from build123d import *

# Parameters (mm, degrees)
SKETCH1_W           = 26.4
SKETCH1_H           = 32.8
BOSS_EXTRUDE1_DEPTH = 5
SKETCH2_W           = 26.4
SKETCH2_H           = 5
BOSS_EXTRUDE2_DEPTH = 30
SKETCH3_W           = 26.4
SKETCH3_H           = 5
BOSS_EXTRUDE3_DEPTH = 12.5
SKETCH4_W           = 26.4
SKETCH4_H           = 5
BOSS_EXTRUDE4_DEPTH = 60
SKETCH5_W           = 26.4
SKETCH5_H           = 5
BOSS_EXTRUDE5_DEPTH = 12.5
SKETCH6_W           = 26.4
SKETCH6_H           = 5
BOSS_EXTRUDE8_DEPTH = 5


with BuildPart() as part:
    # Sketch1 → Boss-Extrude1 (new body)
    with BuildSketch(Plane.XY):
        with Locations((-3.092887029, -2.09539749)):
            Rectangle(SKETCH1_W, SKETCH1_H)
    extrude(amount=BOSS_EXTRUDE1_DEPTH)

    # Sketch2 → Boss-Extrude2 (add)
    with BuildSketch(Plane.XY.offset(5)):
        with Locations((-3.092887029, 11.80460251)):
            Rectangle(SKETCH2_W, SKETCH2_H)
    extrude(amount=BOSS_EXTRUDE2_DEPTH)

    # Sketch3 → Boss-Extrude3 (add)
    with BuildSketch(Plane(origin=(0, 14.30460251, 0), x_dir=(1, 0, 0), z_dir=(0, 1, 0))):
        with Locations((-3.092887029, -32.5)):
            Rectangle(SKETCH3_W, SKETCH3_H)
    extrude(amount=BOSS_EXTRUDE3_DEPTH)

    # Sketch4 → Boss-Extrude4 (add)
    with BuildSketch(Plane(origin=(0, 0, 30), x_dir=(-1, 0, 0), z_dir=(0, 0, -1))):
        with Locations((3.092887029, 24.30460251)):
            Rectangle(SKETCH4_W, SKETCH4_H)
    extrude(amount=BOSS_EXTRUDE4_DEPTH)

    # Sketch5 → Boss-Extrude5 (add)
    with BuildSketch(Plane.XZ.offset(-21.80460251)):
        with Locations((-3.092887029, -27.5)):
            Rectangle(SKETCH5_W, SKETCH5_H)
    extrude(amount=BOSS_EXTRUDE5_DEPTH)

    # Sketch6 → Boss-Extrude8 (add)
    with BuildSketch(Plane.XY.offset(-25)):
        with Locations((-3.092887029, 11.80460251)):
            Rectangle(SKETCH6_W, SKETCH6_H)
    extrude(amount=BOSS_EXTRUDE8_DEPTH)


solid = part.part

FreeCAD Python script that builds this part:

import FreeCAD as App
import Part
import Sketcher

doc = App.newDocument("Part")
body = doc.addObject("PartDesign::Body", "Body")

sketch1 = body.newObject("Sketcher::SketchObject", "Sketch")
sketch1.AttachmentSupport = (doc.getObject("XY_Plane"), [""])
sketch1.MapMode = "FlatFace"
sketch1.addGeometry(Part.LineSegment(App.Vector(-16.292887, 14.304603, 0), App.Vector(-16.292887, -18.495397, 0)), False)
sketch1.addGeometry(Part.LineSegment(App.Vector(-16.292887, -18.495397, 0), App.Vector(10.107113, -18.495397, 0)), False)
sketch1.addGeometry(Part.LineSegment(App.Vector(10.107113, -18.495397, 0), App.Vector(10.107113, 14.304603, 0)), False)
sketch1.addGeometry(Part.LineSegment(App.Vector(10.107113, 14.304603, 0), App.Vector(-16.292887, 14.304603, 0)), False)
sketch1.addConstraint(Sketcher.Constraint("Coincident", 0, 2, 1, 1))
sketch1.addConstraint(Sketcher.Constraint("Coincident", 1, 2, 2, 1))
sketch1.addConstraint(Sketcher.Constraint("Coincident", 2, 2, 3, 1))
sketch1.addConstraint(Sketcher.Constraint("Coincident", 3, 2, 0, 1))
sketch1.addConstraint(Sketcher.Constraint("Vertical", 0))
sketch1.addConstraint(Sketcher.Constraint("Horizontal", 1))
sketch1.addConstraint(Sketcher.Constraint("Vertical", 2))
sketch1.addConstraint(Sketcher.Constraint("Horizontal", 3))
sketch1.addConstraint(Sketcher.Constraint("DistanceX", 1, 1, 1, 2, 26.4))
sketch1.addConstraint(Sketcher.Constraint("DistanceY", 0, 2, 0, 1, 32.8))
sketch1.addConstraint(Sketcher.Constraint("DistanceX", 0, 2, -1, 1, 16.292887))
sketch1.addConstraint(Sketcher.Constraint("DistanceY", 0, 2, -1, 1, 18.495397))
pad1 = body.newObject("PartDesign::Pad", "Pad")
pad1.Profile = sketch1
pad1.Length = 5

sketch2 = body.newObject("Sketcher::SketchObject", "Sketch001")
sketch2.AttachmentSupport = (doc.getObject("XY_Plane"), [""])
sketch2.MapMode = "FlatFace"
sketch2.AttachmentOffset = App.Placement(App.Vector(0, 0, 5), App.Rotation())
sketch2.addGeometry(Part.LineSegment(App.Vector(-16.292887, 14.304603, 0), App.Vector(-16.292887, 9.304603, 0)), False)
sketch2.addGeometry(Part.LineSegment(App.Vector(-16.292887, 9.304603, 0), App.Vector(10.107113, 9.304603, 0)), False)
sketch2.addGeometry(Part.LineSegment(App.Vector(10.107113, 9.304603, 0), App.Vector(10.107113, 14.304603, 0)), False)
sketch2.addGeometry(Part.LineSegment(App.Vector(10.107113, 14.304603, 0), App.Vector(-16.292887, 14.304603, 0)), False)
sketch2.addConstraint(Sketcher.Constraint("Coincident", 0, 2, 1, 1))
sketch2.addConstraint(Sketcher.Constraint("Coincident", 1, 2, 2, 1))
sketch2.addConstraint(Sketcher.Constraint("Coincident", 2, 2, 3, 1))
sketch2.addConstraint(Sketcher.Constraint("Coincident", 3, 2, 0, 1))
sketch2.addConstraint(Sketcher.Constraint("Vertical", 0))
sketch2.addConstraint(Sketcher.Constraint("Horizontal", 1))
sketch2.addConstraint(Sketcher.Constraint("Vertical", 2))
sketch2.addConstraint(Sketcher.Constraint("Horizontal", 3))
sketch2.addConstraint(Sketcher.Constraint("DistanceY", 0, 2, 0, 1, 5.0))
sketch2.addConstraint(Sketcher.Constraint("DistanceX", 1, 1, 1, 2, 26.4))
sketch2.addConstraint(Sketcher.Constraint("DistanceX", 0, 2, -1, 1, 16.292887))
sketch2.addConstraint(Sketcher.Constraint("DistanceY", -1, 1, 0, 2, 9.304603))
pad2 = body.newObject("PartDesign::Pad", "Pad001")
pad2.Profile = sketch2
pad2.Length = 30

sketch3 = body.newObject("Sketcher::SketchObject", "Sketch002")
sketch3.AttachmentSupport = (doc.getObject("XZ_Plane"), [""])
sketch3.MapMode = "FlatFace"
sketch3.AttachmentOffset = App.Placement(App.Vector(0, 0, -14.304603), App.Rotation())
sketch3.addGeometry(Part.LineSegment(App.Vector(-16.292887, 30, 0), App.Vector(-16.292887, 35, 0)), False)
sketch3.addGeometry(Part.LineSegment(App.Vector(-16.292887, 35, 0), App.Vector(10.107113, 35, 0)), False)
sketch3.addGeometry(Part.LineSegment(App.Vector(10.107113, 35, 0), App.Vector(10.107113, 30, 0)), False)
sketch3.addGeometry(Part.LineSegment(App.Vector(10.107113, 30, 0), App.Vector(-16.292887, 30, 0)), False)
sketch3.addConstraint(Sketcher.Constraint("Coincident", 0, 2, 1, 1))
sketch3.addConstraint(Sketcher.Constraint("Coincident", 1, 2, 2, 1))
sketch3.addConstraint(Sketcher.Constraint("Coincident", 2, 2, 3, 1))
sketch3.addConstraint(Sketcher.Constraint("Coincident", 3, 2, 0, 1))
sketch3.addConstraint(Sketcher.Constraint("Vertical", 0))
sketch3.addConstraint(Sketcher.Constraint("Horizontal", 1))
sketch3.addConstraint(Sketcher.Constraint("Vertical", 2))
sketch3.addConstraint(Sketcher.Constraint("Horizontal", 3))
sketch3.addConstraint(Sketcher.Constraint("DistanceY", 0, 1, 0, 2, 5.0))
sketch3.addConstraint(Sketcher.Constraint("DistanceX", 1, 1, 1, 2, 26.4))
sketch3.addConstraint(Sketcher.Constraint("DistanceY", -1, 1, 0, 2, 35.0))
sketch3.addConstraint(Sketcher.Constraint("DistanceX", 0, 2, -1, 1, 16.292887))
pad3 = body.newObject("PartDesign::Pad", "Pad002")
pad3.Profile = sketch3
pad3.Length = 12.5
pad3.Reversed = True

sketch4 = body.newObject("Sketcher::SketchObject", "Sketch003")
sketch4.AttachmentSupport = (doc.getObject("XY_Plane"), [""])
sketch4.MapMode = "FlatFace"
sketch4.AttachmentOffset = App.Placement(App.Vector(0, 0, 30), App.Rotation())
sketch4.addGeometry(Part.LineSegment(App.Vector(10.107113, 26.804603, 0), App.Vector(10.107113, 21.804603, 0)), False)
sketch4.addGeometry(Part.LineSegment(App.Vector(10.107113, 21.804603, 0), App.Vector(-16.292887, 21.804603, 0)), False)
sketch4.addGeometry(Part.LineSegment(App.Vector(-16.292887, 21.804603, 0), App.Vector(-16.292887, 26.804603, 0)), False)
sketch4.addGeometry(Part.LineSegment(App.Vector(-16.292887, 26.804603, 0), App.Vector(10.107113, 26.804603, 0)), False)
sketch4.addConstraint(Sketcher.Constraint("Coincident", 0, 2, 1, 1))
sketch4.addConstraint(Sketcher.Constraint("Coincident", 1, 2, 2, 1))
sketch4.addConstraint(Sketcher.Constraint("Coincident", 2, 2, 3, 1))
sketch4.addConstraint(Sketcher.Constraint("Coincident", 3, 2, 0, 1))
sketch4.addConstraint(Sketcher.Constraint("Vertical", 0))
sketch4.addConstraint(Sketcher.Constraint("Horizontal", 1))
sketch4.addConstraint(Sketcher.Constraint("Vertical", 2))
sketch4.addConstraint(Sketcher.Constraint("Horizontal", 3))
sketch4.addConstraint(Sketcher.Constraint("DistanceY", 0, 2, 0, 1, 5.0))
sketch4.addConstraint(Sketcher.Constraint("DistanceX", 1, 2, 1, 1, 26.4))
sketch4.addConstraint(Sketcher.Constraint("DistanceX", -1, 1, 0, 2, 10.107113))
sketch4.addConstraint(Sketcher.Constraint("DistanceY", -1, 1, 0, 2, 21.804603))
pad4 = body.newObject("PartDesign::Pad", "Pad003")
pad4.Profile = sketch4
pad4.Length = 60
pad4.Reversed = True

sketch5 = body.newObject("Sketcher::SketchObject", "Sketch004")
sketch5.AttachmentSupport = (doc.getObject("XZ_Plane"), [""])
sketch5.MapMode = "FlatFace"
sketch5.AttachmentOffset = App.Placement(App.Vector(0, 0, -21.804603), App.Rotation())
sketch5.addGeometry(Part.LineSegment(App.Vector(-16.292887, -25, 0), App.Vector(-16.292887, -30, 0)), False)
sketch5.addGeometry(Part.LineSegment(App.Vector(-16.292887, -30, 0), App.Vector(10.107113, -30, 0)), False)
sketch5.addGeometry(Part.LineSegment(App.Vector(10.107113, -30, 0), App.Vector(10.107113, -25, 0)), False)
sketch5.addGeometry(Part.LineSegment(App.Vector(10.107113, -25, 0), App.Vector(-16.292887, -25, 0)), False)
sketch5.addConstraint(Sketcher.Constraint("Coincident", 0, 2, 1, 1))
sketch5.addConstraint(Sketcher.Constraint("Coincident", 1, 2, 2, 1))
sketch5.addConstraint(Sketcher.Constraint("Coincident", 2, 2, 3, 1))
sketch5.addConstraint(Sketcher.Constraint("Coincident", 3, 2, 0, 1))
sketch5.addConstraint(Sketcher.Constraint("Vertical", 0))
sketch5.addConstraint(Sketcher.Constraint("Horizontal", 1))
sketch5.addConstraint(Sketcher.Constraint("Vertical", 2))
sketch5.addConstraint(Sketcher.Constraint("Horizontal", 3))
sketch5.addConstraint(Sketcher.Constraint("DistanceY", 0, 2, 0, 1, 5.0))
sketch5.addConstraint(Sketcher.Constraint("DistanceX", 1, 1, 1, 2, 26.4))
sketch5.addConstraint(Sketcher.Constraint("DistanceY", 0, 2, -1, 1, 30.0))
sketch5.addConstraint(Sketcher.Constraint("DistanceX", 0, 2, -1, 1, 16.292887))
pad5 = body.newObject("PartDesign::Pad", "Pad004")
pad5.Profile = sketch5
pad5.Length = 12.5

sketch6 = body.newObject("Sketcher::SketchObject", "Sketch005")
sketch6.AttachmentSupport = (doc.getObject("XY_Plane"), [""])
sketch6.MapMode = "FlatFace"
sketch6.AttachmentOffset = App.Placement(App.Vector(0, 0, -25), App.Rotation())
sketch6.addGeometry(Part.LineSegment(App.Vector(-16.292887, 14.304603, 0), App.Vector(-16.292887, 9.304603, 0)), False)
sketch6.addGeometry(Part.LineSegment(App.Vector(-16.292887, 9.304603, 0), App.Vector(10.107113, 9.304603, 0)), False)
sketch6.addGeometry(Part.LineSegment(App.Vector(10.107113, 9.304603, 0), App.Vector(10.107113, 14.304603, 0)), False)
sketch6.addGeometry(Part.LineSegment(App.Vector(10.107113, 14.304603, 0), App.Vector(-16.292887, 14.304603, 0)), False)
sketch6.addConstraint(Sketcher.Constraint("Coincident", 0, 2, 1, 1))
sketch6.addConstraint(Sketcher.Constraint("Coincident", 1, 2, 2, 1))
sketch6.addConstraint(Sketcher.Constraint("Coincident", 2, 2, 3, 1))
sketch6.addConstraint(Sketcher.Constraint("Coincident", 3, 2, 0, 1))
sketch6.addConstraint(Sketcher.Constraint("Vertical", 0))
sketch6.addConstraint(Sketcher.Constraint("Horizontal", 1))
sketch6.addConstraint(Sketcher.Constraint("Vertical", 2))
sketch6.addConstraint(Sketcher.Constraint("Horizontal", 3))
sketch6.addConstraint(Sketcher.Constraint("DistanceY", 0, 2, 0, 1, 5.0))
sketch6.addConstraint(Sketcher.Constraint("DistanceX", 1, 1, 1, 2, 26.4))
sketch6.addConstraint(Sketcher.Constraint("DistanceX", 0, 2, -1, 1, 16.292887))
sketch6.addConstraint(Sketcher.Constraint("DistanceY", -1, 1, 0, 2, 9.304603))
pad6 = body.newObject("PartDesign::Pad", "Pad005")
pad6.Profile = sketch6
pad6.Length = 5

doc.recompute()
